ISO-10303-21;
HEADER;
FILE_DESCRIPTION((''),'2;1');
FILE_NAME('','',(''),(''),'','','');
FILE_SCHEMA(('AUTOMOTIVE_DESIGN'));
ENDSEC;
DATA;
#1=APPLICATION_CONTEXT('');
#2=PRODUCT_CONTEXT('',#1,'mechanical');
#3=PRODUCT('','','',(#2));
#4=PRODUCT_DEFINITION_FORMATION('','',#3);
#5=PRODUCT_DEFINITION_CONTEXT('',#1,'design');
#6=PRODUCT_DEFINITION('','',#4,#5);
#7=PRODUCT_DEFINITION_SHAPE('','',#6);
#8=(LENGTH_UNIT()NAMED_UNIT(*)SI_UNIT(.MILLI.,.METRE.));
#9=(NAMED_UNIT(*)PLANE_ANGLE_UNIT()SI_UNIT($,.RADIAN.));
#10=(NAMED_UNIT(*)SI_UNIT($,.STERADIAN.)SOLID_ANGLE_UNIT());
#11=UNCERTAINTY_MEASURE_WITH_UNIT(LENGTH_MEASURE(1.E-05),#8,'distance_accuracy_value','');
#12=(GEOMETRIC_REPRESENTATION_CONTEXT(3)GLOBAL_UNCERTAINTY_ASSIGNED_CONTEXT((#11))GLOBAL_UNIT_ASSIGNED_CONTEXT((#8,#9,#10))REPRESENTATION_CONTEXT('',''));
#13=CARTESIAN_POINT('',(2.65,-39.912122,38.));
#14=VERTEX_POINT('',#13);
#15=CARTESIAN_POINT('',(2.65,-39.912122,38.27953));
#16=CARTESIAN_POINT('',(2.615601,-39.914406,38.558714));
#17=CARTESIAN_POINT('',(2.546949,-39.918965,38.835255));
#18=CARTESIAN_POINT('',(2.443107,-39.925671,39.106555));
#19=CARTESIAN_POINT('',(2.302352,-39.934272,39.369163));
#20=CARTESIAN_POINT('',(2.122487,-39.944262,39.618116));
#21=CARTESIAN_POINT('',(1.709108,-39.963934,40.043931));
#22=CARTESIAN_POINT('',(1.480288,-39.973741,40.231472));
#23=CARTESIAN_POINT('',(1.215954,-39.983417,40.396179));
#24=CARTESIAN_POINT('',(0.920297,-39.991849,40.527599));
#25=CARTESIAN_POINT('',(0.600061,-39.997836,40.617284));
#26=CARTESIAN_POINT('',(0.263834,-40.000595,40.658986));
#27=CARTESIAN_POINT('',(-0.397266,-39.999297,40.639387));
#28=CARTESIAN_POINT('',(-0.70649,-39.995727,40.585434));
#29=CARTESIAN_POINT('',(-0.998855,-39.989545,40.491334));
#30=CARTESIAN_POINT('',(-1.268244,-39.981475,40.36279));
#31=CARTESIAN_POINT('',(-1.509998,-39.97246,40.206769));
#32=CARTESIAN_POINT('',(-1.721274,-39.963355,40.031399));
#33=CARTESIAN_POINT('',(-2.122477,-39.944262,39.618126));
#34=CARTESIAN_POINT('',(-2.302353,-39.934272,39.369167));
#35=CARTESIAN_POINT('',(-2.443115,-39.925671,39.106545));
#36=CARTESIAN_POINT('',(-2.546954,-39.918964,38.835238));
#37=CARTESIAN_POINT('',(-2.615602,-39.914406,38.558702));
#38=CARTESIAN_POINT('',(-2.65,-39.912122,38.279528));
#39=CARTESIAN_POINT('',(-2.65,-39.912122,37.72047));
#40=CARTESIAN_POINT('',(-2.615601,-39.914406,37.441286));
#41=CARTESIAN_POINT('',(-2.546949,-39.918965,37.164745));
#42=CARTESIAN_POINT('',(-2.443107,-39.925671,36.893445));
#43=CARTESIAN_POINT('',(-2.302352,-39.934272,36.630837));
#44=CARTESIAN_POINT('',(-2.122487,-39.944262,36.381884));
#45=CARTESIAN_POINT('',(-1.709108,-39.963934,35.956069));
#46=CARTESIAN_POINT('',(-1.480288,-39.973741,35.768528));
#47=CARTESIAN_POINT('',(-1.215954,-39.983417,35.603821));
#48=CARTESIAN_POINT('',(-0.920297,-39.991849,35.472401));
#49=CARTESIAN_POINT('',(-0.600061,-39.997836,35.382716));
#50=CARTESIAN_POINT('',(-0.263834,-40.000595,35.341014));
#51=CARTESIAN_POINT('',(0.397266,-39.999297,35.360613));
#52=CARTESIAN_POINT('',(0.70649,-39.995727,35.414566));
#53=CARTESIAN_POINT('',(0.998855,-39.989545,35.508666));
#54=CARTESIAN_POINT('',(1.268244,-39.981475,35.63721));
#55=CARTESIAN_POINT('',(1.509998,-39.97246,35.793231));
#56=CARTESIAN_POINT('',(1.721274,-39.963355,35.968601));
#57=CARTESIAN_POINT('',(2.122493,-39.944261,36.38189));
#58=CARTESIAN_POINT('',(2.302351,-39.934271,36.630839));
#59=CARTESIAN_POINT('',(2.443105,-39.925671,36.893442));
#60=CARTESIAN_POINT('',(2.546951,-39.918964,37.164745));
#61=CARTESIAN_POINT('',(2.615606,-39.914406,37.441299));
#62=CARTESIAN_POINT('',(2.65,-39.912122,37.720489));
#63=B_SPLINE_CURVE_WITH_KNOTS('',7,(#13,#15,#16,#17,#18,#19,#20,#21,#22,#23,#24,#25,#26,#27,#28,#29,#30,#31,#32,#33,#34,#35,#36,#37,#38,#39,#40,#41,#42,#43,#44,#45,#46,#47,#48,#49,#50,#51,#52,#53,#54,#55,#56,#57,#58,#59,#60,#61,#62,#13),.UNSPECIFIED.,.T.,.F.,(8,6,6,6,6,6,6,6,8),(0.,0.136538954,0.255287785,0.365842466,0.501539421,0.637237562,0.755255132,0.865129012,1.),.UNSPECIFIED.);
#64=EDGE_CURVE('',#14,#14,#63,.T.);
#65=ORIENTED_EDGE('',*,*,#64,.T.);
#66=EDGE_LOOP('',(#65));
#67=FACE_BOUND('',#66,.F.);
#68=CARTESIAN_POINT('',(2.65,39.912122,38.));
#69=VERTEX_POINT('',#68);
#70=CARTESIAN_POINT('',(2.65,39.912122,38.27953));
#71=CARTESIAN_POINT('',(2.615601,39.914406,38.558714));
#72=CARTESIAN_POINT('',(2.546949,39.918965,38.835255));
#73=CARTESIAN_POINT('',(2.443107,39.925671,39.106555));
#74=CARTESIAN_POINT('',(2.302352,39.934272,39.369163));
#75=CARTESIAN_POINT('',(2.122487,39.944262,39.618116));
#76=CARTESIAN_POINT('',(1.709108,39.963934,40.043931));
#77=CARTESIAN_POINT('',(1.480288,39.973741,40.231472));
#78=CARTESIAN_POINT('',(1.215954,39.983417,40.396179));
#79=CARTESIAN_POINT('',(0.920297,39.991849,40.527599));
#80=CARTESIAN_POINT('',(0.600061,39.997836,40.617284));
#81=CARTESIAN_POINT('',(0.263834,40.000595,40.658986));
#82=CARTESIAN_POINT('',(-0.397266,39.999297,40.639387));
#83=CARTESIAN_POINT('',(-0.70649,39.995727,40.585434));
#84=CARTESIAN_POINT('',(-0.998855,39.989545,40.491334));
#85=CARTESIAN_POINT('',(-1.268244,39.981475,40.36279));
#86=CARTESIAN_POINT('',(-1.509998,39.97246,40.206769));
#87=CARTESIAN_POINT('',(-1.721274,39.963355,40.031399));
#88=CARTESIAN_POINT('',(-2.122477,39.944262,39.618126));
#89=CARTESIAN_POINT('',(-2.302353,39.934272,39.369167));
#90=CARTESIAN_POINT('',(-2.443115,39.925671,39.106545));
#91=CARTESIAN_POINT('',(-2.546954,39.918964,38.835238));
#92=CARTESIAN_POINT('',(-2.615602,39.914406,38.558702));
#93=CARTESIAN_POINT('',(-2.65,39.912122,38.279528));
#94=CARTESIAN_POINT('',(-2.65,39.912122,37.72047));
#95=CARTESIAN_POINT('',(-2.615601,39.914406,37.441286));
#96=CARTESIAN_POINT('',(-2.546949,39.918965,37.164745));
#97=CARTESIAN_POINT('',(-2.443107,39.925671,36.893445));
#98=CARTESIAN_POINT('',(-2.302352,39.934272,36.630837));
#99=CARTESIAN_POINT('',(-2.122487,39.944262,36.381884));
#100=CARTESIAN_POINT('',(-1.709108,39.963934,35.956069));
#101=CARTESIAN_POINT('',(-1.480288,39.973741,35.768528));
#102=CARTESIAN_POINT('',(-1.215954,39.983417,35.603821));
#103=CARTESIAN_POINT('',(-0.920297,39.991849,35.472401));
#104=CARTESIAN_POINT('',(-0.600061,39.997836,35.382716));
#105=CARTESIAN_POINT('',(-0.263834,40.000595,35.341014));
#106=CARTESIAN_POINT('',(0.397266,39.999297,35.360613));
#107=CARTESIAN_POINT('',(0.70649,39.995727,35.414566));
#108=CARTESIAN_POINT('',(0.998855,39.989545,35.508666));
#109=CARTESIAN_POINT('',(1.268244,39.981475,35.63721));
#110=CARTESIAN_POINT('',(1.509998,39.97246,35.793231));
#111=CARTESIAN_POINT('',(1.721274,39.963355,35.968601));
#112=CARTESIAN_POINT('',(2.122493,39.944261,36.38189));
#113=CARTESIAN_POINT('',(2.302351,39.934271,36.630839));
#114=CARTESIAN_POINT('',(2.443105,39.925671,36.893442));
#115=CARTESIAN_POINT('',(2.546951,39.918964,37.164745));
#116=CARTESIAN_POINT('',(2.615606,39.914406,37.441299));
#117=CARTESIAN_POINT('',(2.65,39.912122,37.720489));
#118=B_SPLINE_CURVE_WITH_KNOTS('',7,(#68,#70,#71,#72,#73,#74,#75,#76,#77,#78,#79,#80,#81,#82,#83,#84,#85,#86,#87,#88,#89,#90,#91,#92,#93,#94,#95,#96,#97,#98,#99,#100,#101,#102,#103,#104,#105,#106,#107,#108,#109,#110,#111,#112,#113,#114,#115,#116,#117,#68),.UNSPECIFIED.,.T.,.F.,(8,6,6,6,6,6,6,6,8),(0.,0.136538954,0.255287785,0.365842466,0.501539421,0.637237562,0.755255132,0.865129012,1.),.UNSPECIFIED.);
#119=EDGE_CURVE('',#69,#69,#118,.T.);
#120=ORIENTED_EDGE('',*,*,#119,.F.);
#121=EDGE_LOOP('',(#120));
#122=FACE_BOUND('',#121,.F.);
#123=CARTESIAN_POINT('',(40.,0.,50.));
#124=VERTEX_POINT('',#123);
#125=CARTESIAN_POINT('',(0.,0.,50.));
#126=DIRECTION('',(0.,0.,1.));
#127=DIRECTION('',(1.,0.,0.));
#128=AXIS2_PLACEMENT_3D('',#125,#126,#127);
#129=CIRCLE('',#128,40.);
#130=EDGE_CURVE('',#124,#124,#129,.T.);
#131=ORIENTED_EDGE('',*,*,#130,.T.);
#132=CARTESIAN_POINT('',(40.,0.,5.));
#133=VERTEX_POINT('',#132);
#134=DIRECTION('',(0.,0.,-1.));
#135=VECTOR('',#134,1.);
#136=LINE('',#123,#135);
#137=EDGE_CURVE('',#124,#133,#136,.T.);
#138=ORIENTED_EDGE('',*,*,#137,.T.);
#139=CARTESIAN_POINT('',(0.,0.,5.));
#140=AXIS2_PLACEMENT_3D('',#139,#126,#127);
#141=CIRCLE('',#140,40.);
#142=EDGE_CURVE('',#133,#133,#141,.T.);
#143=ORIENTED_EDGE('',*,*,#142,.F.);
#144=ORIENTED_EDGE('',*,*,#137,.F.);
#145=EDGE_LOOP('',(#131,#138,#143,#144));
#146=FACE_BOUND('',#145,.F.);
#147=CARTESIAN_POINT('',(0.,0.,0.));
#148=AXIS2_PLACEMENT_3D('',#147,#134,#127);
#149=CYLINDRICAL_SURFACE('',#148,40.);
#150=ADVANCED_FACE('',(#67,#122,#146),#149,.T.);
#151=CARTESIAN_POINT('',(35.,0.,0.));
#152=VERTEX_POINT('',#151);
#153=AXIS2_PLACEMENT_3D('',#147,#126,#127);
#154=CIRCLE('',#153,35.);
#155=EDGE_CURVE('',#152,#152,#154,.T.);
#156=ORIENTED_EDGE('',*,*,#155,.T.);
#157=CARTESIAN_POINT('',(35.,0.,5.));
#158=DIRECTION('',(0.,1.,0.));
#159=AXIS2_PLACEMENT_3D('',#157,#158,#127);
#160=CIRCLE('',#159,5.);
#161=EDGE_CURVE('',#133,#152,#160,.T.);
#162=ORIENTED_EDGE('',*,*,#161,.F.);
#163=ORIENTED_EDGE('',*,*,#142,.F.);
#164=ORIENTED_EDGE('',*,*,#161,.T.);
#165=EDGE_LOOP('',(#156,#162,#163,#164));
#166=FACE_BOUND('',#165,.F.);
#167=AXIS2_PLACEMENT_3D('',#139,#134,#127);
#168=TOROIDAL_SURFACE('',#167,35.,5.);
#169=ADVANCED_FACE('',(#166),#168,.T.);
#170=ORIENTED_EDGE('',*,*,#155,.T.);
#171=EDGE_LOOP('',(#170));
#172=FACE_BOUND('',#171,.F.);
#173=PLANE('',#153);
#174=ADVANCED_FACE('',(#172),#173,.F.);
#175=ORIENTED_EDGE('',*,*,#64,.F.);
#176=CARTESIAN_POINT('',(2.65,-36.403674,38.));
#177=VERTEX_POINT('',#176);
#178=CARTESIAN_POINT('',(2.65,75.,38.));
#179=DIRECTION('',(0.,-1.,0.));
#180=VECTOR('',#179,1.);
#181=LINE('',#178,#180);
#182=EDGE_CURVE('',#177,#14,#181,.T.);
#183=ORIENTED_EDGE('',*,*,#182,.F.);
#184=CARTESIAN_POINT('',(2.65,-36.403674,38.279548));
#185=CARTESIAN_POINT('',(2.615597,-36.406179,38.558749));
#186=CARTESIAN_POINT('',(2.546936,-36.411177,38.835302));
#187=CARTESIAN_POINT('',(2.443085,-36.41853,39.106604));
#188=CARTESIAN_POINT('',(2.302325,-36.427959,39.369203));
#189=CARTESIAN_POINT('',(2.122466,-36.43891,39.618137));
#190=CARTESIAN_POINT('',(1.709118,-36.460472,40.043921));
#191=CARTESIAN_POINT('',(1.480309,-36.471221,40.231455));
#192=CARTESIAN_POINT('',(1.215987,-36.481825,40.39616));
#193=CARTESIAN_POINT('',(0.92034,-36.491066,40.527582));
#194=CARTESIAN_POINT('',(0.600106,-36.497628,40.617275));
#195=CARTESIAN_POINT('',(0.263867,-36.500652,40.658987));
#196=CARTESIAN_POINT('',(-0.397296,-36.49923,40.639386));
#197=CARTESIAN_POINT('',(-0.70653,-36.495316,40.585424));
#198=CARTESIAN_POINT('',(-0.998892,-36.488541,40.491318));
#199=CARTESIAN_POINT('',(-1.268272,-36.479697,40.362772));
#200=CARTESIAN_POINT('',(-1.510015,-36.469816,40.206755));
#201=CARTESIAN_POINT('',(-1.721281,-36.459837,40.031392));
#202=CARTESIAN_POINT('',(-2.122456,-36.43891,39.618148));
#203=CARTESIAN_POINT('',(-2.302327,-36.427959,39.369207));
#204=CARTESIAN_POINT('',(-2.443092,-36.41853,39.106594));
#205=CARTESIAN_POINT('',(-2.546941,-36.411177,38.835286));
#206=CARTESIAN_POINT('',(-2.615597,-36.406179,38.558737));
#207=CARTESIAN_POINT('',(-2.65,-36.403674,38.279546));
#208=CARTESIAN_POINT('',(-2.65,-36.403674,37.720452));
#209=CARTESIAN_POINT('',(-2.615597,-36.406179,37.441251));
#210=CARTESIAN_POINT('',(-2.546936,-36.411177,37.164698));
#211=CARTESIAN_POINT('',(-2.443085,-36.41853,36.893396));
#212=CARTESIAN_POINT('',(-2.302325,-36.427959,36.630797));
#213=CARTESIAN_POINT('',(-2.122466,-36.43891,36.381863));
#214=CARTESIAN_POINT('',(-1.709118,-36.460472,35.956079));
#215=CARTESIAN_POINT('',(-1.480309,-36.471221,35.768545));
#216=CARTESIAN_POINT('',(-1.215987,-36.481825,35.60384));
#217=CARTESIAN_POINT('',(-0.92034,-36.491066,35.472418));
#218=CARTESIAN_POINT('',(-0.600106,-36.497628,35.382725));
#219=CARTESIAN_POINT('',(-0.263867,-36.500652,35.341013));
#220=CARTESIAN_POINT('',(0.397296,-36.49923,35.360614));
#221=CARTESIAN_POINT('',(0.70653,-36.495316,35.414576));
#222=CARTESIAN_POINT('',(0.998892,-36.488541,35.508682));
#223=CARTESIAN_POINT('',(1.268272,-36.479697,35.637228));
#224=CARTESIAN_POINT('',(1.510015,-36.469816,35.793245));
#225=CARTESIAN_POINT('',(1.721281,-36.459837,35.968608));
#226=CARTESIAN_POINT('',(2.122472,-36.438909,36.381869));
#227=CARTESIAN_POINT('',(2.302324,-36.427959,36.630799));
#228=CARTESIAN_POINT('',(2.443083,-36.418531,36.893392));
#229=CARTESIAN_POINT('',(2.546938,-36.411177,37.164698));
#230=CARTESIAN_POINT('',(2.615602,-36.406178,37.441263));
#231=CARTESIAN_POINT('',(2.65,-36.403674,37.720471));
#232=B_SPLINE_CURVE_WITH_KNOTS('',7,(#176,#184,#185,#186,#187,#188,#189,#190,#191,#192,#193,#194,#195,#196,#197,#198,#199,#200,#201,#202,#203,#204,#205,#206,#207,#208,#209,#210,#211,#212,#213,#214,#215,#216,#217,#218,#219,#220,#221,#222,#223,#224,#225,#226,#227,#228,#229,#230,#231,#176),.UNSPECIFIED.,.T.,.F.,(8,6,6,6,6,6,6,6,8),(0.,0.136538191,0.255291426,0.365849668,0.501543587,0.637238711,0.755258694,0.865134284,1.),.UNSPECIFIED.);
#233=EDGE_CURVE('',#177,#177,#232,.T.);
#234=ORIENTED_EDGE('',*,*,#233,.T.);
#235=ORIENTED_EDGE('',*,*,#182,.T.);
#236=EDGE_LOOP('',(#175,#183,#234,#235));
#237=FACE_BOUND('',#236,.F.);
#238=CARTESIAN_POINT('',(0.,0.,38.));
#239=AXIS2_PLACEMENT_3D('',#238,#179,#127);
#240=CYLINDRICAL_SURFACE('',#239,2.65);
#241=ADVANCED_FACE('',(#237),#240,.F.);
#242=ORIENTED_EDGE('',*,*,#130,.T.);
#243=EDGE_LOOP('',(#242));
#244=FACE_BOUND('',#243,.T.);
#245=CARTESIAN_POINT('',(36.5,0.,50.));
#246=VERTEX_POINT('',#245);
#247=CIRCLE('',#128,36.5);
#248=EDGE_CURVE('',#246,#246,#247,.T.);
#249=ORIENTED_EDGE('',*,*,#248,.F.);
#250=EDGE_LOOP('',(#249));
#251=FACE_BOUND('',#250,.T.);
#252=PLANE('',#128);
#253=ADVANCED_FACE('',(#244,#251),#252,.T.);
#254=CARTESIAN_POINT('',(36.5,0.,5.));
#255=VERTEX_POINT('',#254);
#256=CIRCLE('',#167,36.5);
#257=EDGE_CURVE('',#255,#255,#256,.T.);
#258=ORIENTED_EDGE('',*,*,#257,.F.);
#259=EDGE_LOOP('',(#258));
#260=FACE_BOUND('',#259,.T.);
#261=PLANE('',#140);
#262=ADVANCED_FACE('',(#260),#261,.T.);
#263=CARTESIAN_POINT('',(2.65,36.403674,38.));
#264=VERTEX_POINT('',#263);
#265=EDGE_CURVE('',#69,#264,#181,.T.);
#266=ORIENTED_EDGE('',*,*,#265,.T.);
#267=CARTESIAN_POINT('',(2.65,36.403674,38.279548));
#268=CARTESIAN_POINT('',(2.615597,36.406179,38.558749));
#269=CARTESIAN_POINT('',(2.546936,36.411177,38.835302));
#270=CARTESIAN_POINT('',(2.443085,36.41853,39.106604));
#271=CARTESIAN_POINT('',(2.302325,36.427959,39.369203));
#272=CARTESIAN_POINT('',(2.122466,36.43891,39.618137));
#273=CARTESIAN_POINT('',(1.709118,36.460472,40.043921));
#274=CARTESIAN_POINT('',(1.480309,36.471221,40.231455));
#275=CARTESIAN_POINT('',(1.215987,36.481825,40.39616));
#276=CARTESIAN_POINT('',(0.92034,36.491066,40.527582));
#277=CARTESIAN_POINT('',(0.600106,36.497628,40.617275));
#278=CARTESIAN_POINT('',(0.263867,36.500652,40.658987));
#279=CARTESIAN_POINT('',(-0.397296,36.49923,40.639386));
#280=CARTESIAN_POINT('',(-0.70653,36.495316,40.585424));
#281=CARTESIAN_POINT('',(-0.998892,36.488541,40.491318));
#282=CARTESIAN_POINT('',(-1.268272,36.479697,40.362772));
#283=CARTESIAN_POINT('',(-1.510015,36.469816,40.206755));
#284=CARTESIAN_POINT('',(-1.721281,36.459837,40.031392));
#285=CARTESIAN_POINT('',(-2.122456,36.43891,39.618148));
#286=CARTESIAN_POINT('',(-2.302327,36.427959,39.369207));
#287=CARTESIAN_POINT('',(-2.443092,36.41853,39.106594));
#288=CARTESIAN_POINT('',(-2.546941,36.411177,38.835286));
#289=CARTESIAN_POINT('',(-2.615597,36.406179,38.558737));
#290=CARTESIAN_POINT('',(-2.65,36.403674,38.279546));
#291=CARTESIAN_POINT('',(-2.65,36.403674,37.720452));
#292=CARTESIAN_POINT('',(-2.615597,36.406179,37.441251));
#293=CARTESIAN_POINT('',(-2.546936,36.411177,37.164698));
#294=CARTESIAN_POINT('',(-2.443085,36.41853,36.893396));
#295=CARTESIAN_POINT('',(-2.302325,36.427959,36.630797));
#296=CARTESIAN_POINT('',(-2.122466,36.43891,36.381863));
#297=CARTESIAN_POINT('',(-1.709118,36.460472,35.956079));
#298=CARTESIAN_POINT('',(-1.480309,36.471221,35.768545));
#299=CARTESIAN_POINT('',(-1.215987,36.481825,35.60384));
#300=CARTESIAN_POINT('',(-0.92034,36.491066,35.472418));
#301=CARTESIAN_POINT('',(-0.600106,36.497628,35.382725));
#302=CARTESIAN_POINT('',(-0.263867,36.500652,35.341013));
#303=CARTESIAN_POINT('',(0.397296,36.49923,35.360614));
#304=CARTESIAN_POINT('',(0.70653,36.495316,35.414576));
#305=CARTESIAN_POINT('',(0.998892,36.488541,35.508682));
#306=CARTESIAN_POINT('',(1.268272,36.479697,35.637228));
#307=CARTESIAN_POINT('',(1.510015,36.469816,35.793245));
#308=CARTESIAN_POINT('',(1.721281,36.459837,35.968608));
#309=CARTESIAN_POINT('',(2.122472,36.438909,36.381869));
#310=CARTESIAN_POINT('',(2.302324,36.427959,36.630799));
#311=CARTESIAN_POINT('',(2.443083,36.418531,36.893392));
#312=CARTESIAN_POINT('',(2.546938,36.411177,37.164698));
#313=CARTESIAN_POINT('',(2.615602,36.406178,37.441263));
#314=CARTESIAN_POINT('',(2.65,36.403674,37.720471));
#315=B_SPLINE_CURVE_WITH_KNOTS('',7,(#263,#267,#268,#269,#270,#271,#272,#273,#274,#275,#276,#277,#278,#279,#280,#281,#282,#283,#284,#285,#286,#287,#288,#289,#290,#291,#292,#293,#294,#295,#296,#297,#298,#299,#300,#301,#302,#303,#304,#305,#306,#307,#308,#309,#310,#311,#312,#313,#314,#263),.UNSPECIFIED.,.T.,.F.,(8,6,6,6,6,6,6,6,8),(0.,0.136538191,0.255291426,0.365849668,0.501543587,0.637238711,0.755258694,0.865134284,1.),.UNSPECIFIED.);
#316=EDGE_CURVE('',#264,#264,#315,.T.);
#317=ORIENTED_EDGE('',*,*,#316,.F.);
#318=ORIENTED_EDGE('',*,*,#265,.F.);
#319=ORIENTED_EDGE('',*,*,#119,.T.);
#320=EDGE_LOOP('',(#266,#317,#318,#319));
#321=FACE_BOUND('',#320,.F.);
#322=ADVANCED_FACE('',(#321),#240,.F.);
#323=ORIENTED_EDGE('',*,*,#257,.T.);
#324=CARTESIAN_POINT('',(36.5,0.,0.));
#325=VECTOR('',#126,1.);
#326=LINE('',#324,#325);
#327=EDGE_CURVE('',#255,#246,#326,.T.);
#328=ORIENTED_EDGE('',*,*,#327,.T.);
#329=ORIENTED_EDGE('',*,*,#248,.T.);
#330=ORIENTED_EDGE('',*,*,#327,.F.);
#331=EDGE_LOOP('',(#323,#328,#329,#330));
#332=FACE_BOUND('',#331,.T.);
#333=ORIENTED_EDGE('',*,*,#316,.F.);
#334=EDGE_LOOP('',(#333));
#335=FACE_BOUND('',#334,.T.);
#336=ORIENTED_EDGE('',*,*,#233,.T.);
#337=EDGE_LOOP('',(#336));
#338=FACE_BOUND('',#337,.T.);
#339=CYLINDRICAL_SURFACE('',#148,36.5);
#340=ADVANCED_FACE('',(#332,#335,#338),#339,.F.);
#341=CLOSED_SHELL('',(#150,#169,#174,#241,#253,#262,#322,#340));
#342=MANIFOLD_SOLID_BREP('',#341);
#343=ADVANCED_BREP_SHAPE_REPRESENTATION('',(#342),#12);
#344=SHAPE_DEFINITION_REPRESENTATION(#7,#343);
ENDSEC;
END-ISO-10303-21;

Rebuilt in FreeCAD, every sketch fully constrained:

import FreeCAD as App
import Part
import Sketcher

V = App.Vector


def edges_at(feature, points):
    """Names of the edges that pass closest to the given points."""
    edges = feature.Shape.Edges
    near = lambda p: min(range(len(edges)), key=lambda i: edges[i].distToShape(Part.Vertex(*p))[0])
    return sorted({f"Edge{near(p) + 1}" for p in points})

doc = App.newDocument("Part")
body = doc.addObject("PartDesign::Body", "Body")

# Sketch on XY plane
sketch1 = body.newObject("Sketcher::SketchObject", "Sketch")
sketch1.AttachmentSupport = (doc.getObject("XY_Plane"), [""])
sketch1.MapMode = "FlatFace"
sketch1.addGeometry(Part.Circle(V(0, 0, 0), V(0, 0, 1), 40), False)
sketch1.addConstraint([
    Sketcher.Constraint("Coincident", 0, 3, -1, 1),
    Sketcher.Constraint("Diameter", 0, 80.0),
])
pad1 = body.newObject("PartDesign::Pad", "Pad")
pad1.Profile = sketch1
pad1.Length = 5

# Sketch on XY plane
sketch2 = body.newObject("Sketcher::SketchObject", "Sketch001")
sketch2.AttachmentSupport = (doc.getObject("XY_Plane"), [""])
sketch2.MapMode = "FlatFace"
sketch2.addGeometry([
    Part.Circle(V(0, 0, 0), V(0, 0, 1), 40),
    Part.Circle(V(0, 0, 0), V(0, 0, 1), 36),
], False)
sketch2.addConstraint([
    Sketcher.Constraint("Coincident", 0, 3, -1, 1),
    Sketcher.Constraint("Coincident", 1, 3, -1, 1),
    Sketcher.Constraint("Diameter", 0, 80.0),
    Sketcher.Constraint("Diameter", 1, 73.0),
])
pad2 = body.newObject("PartDesign::Pad", "Pad001")
pad2.Profile = sketch2
pad2.Length = 50

# Sketch on XZ plane
sketch3 = body.newObject("Sketcher::SketchObject", "Sketch002")
sketch3.AttachmentSupport = (doc.getObject("XZ_Plane"), [""])
sketch3.MapMode = "FlatFace"
sketch3.addGeometry(Part.Circle(V(0, 38, 0), V(0, 0, 1), 2.6), False)
sketch3.addConstraint([
    Sketcher.Constraint("PointOnObject", 0, 3, -2),
    Sketcher.Constraint("Diameter", 0, 5.3),
    Sketcher.Constraint("DistanceY", -1, 1, 0, 3, 38.0),
])
pocket1 = body.newObject("PartDesign::Pocket", "Pocket")
pocket1.Profile = sketch3
pocket1.Length = 150
pocket1.Midplane = True
doc.recompute()

fillet = body.newObject("PartDesign::Fillet", "Fillet")
fillet.Base = (pocket1, edges_at(pocket1, [(-40, 0, 0)]))
fillet.Radius = 5

doc.recompute()
